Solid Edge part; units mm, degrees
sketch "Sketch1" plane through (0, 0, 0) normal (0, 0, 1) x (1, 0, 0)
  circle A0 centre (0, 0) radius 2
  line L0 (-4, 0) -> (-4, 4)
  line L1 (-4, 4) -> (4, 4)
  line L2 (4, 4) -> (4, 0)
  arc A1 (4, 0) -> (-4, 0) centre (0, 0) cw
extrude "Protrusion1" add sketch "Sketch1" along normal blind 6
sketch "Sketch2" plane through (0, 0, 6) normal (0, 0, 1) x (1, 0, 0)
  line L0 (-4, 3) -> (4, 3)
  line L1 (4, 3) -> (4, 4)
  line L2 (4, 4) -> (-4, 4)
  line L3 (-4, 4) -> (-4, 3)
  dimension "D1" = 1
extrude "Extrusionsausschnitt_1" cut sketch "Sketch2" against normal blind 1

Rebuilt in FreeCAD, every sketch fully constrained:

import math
import FreeCAD as App
import Part
import Sketcher


def add_polygon(sketch, points):
    """Adds a closed chain of lines whose ends are joined by coincident constraints."""
    first, n = sketch.GeometryCount, len(points)
    for a, b in zip(points, points[1:] + points[:1]):
        sketch.addGeometry(Part.LineSegment(App.Vector(*a, 0), App.Vector(*b, 0)), False)
    for i in range(n):
        sketch.addConstraint(Sketcher.Constraint("Coincident", first + i, 2, first + (i + 1) % n, 1))

doc = App.newDocument("Part")
body = doc.addObject("PartDesign::Body", "Body")

sketch1 = doc.addObject("Sketcher::SketchObject", "Sketch")
body.addObject(sketch1)
sketch1.AttachmentSupport = (doc.XY_Plane, [""])
sketch1.MapMode = "FlatFace"
sketch1.addGeometry([
    Part.LineSegment(App.Vector(-4, 4, 0), App.Vector(-4, 0, 0)),
    Part.ArcOfCircle(Part.Circle(App.Vector(0, 0, 0), App.Vector(0, 0, 1), 4), math.radians(180), math.radians(360)),
    Part.LineSegment(App.Vector(4, 0, 0), App.Vector(4, 4, 0)),
    Part.LineSegment(App.Vector(4, 4, 0), App.Vector(-4, 4, 0)),
    Part.Circle(App.Vector(0, 0, 0), App.Vector(0, 0, 1), 2),
], False)
sketch1.addConstraint([
    Sketcher.Constraint("Tangent", 0, 2, 1, 1),
    Sketcher.Constraint("Tangent", 1, 2, 2, 1),
    Sketcher.Constraint("Coincident", 2, 2, 3, 1),
    Sketcher.Constraint("Coincident", 3, 2, 0, 1),
    Sketcher.Constraint("Vertical", 0),
    Sketcher.Constraint("Vertical", 2),
    Sketcher.Constraint("Horizontal", 3),
    Sketcher.Constraint("Coincident", 1, 3, -1, 1),
    Sketcher.Constraint("Coincident", 4, 3, -1, 1),
    Sketcher.Constraint("Diameter", 4, 4.0),
    Sketcher.Constraint("Radius", 1, 4.0),
    Sketcher.Constraint("DistanceY", 0, 2, 0, 1, 4.0),
])
pad1 = doc.addObject("PartDesign::Pad", "Pad")
body.addObject(pad1)
pad1.Profile = sketch1
pad1.Length = 6

sketch2 = doc.addObject("Sketcher::SketchObject", "Sketch001")
body.addObject(sketch2)
sketch2.AttachmentSupport = (doc.XY_Plane, [""])
sketch2.MapMode = "FlatFace"
sketch2.AttachmentOffset = App.Placement(App.Vector(0, 0, 6), App.Rotation())
add_polygon(sketch2, [(-4, 4), (-4, 3), (4, 3), (4, 4)])
sketch2.addConstraint([
    Sketcher.Constraint("Vertical", 0),
    Sketcher.Constraint("Horizontal", 1),
    Sketcher.Constraint("Vertical", 2),
    Sketcher.Constraint("Horizontal", 3),
    Sketcher.Constraint("DistanceX", 0, 2, -1, 1, 4.0),
    Sketcher.Constraint("DistanceX", -1, 1, 1, 2, 4.0),
    Sketcher.Constraint("DistanceY", -1, 1, 2, 2, 4.0),
    Sketcher.Constraint("DistanceY", 0, 2, 0, 1, 1.0),
])
pocket1 = doc.addObject("PartDesign::Pocket", "Pocket")
body.addObject(pocket1)
pocket1.Profile = sketch2
pocket1.Length = 1

doc.recompute()
